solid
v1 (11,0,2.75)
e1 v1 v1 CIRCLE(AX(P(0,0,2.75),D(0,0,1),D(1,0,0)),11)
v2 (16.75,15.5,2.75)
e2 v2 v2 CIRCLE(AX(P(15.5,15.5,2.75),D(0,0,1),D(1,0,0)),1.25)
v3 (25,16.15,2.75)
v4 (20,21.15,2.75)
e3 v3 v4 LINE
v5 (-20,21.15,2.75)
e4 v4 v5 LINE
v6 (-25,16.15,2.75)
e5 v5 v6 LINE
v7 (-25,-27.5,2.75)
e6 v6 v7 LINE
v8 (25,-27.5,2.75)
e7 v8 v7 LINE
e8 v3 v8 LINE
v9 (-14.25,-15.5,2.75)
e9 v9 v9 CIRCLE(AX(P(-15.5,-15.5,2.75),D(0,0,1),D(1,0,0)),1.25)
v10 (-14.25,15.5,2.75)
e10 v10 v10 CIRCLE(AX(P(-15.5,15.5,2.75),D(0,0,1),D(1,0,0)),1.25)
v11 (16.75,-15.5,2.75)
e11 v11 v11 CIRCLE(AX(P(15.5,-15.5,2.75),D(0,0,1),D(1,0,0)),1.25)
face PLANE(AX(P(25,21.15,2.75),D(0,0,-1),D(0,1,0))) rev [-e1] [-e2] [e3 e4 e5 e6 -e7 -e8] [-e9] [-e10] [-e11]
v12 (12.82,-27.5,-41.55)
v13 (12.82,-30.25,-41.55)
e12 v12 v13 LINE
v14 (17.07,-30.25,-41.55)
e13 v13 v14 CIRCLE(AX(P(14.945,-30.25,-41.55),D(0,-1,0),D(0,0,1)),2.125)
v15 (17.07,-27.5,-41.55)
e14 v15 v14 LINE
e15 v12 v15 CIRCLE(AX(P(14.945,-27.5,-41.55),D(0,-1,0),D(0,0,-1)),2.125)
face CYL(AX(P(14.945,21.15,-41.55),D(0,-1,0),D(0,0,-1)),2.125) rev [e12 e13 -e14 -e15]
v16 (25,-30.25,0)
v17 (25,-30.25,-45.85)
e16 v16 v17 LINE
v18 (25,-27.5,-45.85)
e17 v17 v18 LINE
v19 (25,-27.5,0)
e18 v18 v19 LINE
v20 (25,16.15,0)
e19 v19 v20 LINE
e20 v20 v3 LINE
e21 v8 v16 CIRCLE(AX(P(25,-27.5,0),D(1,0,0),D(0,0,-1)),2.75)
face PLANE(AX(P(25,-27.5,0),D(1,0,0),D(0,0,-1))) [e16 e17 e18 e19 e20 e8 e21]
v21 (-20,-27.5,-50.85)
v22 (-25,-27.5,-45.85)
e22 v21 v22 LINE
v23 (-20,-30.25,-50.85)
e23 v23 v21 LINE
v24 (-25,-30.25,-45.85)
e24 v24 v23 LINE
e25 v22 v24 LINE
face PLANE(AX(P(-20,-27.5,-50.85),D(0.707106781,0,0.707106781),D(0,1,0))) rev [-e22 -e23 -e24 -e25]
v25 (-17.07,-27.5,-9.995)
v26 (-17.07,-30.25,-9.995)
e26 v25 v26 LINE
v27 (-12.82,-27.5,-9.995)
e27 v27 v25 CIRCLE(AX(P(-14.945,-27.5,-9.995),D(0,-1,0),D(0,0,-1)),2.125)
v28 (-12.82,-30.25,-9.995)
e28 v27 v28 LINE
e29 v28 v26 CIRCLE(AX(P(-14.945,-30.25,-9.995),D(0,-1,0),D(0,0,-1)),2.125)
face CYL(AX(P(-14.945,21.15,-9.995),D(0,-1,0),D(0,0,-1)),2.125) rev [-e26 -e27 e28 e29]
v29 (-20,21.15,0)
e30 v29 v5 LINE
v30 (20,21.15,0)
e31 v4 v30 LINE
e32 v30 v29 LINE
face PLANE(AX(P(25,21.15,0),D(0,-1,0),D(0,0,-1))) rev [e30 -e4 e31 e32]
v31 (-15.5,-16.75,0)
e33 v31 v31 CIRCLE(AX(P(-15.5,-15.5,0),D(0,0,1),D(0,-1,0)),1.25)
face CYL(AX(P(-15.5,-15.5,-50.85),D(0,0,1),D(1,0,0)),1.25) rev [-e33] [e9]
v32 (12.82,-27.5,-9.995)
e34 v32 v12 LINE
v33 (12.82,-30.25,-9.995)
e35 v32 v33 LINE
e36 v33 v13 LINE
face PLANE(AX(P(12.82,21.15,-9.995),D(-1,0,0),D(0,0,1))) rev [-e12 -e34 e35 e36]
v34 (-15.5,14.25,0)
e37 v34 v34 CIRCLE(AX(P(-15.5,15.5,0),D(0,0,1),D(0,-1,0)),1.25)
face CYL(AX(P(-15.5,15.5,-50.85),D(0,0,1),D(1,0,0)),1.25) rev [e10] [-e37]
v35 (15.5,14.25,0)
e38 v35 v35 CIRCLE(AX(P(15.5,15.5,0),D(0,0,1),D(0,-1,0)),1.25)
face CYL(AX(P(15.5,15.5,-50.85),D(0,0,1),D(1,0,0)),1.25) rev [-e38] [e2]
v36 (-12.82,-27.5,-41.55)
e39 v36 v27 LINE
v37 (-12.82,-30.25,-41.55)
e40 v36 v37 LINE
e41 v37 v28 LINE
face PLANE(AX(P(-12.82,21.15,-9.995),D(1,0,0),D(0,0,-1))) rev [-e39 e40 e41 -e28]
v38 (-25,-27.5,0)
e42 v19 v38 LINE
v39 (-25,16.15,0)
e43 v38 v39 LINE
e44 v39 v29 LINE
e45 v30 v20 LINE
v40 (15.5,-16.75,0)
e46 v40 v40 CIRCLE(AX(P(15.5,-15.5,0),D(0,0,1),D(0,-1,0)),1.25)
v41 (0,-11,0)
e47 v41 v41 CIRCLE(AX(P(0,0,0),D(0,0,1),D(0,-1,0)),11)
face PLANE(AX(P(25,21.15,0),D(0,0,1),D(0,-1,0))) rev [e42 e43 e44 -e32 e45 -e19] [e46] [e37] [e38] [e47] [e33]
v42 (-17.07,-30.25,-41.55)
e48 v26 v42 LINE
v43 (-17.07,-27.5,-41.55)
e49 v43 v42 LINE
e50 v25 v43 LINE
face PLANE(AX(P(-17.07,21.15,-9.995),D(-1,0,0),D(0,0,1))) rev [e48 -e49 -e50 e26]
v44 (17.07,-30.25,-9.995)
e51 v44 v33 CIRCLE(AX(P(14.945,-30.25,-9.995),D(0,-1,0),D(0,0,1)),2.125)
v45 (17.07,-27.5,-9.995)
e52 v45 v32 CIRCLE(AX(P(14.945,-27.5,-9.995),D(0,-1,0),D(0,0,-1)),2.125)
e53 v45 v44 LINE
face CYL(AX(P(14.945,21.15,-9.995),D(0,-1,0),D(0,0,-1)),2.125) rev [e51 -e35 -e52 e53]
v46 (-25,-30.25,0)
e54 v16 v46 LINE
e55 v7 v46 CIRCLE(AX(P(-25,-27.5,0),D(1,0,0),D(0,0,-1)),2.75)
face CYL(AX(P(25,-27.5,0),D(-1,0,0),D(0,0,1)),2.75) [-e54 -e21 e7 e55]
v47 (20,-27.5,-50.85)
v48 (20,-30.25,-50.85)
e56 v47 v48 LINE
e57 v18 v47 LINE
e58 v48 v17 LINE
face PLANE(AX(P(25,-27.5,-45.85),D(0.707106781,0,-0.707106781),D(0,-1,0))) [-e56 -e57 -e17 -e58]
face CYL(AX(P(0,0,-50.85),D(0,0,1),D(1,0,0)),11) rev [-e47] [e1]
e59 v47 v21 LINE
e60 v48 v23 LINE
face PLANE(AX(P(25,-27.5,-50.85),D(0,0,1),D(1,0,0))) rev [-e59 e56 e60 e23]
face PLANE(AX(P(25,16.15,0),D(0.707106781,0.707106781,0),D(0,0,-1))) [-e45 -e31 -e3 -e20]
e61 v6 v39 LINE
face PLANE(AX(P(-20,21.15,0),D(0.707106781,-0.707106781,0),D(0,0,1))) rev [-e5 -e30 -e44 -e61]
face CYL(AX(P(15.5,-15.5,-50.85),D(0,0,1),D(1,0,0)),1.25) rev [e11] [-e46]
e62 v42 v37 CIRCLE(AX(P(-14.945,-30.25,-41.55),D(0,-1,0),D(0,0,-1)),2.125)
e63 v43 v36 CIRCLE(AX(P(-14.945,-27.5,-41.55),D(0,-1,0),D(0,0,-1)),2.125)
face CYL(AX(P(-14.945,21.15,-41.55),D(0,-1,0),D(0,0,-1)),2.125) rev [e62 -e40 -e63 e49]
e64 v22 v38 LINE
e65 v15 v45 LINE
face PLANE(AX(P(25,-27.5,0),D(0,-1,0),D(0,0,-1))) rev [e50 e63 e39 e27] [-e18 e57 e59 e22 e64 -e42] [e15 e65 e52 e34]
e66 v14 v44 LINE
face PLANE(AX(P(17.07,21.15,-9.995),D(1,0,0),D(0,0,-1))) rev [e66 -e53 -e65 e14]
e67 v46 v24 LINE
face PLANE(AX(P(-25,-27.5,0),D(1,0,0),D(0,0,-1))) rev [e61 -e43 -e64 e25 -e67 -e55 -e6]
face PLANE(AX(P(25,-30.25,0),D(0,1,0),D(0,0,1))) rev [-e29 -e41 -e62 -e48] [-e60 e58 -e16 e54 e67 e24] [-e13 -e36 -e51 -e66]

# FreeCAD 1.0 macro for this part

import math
import FreeCAD as App
import Part
import Sketcher

V = App.Vector
Q = App.Units.Quantity


def edges_at(feature, points):
    """Names of the edges that pass closest to the given points."""
    edges = feature.Shape.Edges
    near = lambda p: min(range(len(edges)), key=lambda i: edges[i].distToShape(Part.Vertex(*p))[0])
    return sorted({f"Edge{near(p) + 1}" for p in points})

doc = App.newDocument("Part")
body = doc.addObject("PartDesign::Body", "Body")

# Sketch on YZ plane
sketch1 = doc.addObject("Sketcher::SketchObject", "Sketch")
body.addObject(sketch1)
sketch1.AttachmentSupport = (doc.YZ_Plane, [""])
sketch1.MapMode = "FlatFace"
sketch1.addGeometry(Part.LineSegment(V(-27.5, 0, 0), V(21.1, 0, 0)), False)
sketch1.addGeometry(Part.LineSegment(V(21.1, 0, 0), V(21.1, 2.8, 0)), False)
sketch1.addGeometry(Part.LineSegment(V(21.1, 2.8, 0), V(-27.5, 2.8, 0)), False)
sketch1.addGeometry(Part.ArcOfCircle(Part.Circle(V(-27.5, 0, 0), V(0, 0, 1), 2.8), math.radians(90), math.radians(180)), False)
sketch1.addGeometry(Part.LineSegment(V(-30.2, 0, 0), V(-30.2, -50.9, 0)), False)
sketch1.addGeometry(Part.LineSegment(V(-30.2, -50.9, 0), V(-27.5, -50.9, 0)), False)
sketch1.addGeometry(Part.LineSegment(V(-27.5, -50.9, 0), V(-27.5, 0, 0)), False)
sketch1.addConstraint(Sketcher.Constraint("Coincident", 0, 2, 1, 1))
sketch1.addConstraint(Sketcher.Constraint("Coincident", 1, 2, 2, 1))
sketch1.addConstraint(Sketcher.Constraint("Tangent", 2, 2, 3, 1))
sketch1.addConstraint(Sketcher.Constraint("Tangent", 3, 2, 4, 1))
sketch1.addConstraint(Sketcher.Constraint("Coincident", 4, 2, 5, 1))
sketch1.addConstraint(Sketcher.Constraint("Coincident", 5, 2, 6, 1))
sketch1.addConstraint(Sketcher.Constraint("Coincident", 6, 2, 0, 1))
sketch1.addConstraint(Sketcher.Constraint("Horizontal", 0))
sketch1.addConstraint(Sketcher.Constraint("Vertical", 1))
sketch1.addConstraint(Sketcher.Constraint("Horizontal", 2))
sketch1.addConstraint(Sketcher.Constraint("Vertical", 4))
sketch1.addConstraint(Sketcher.Constraint("Horizontal", 5))
sketch1.addConstraint(Sketcher.Constraint("Vertical", 6))
sketch1.addConstraint(Sketcher.Constraint("Coincident", 6, 2, 3, 3))
sketch1.addConstraint(Sketcher.Constraint("PointOnObject", 3, 3, -1))
sketch1.addConstraint(Sketcher.Constraint("Radius", 3, Q("2.75 mm")))
sketch1.addConstraint(Sketcher.Constraint("DistanceX", 0, 1, 0, 2, Q("48.65 mm")))
sketch1.addConstraint(Sketcher.Constraint("DistanceY", 4, 2, 4, 1, Q("50.85 mm")))
sketch1.addConstraint(Sketcher.Constraint("DistanceX", 3, 3, -1, 1, Q("27.5 mm")))
pad1 = doc.addObject("PartDesign::Pad", "Pad")
body.addObject(pad1)
pad1.Profile = sketch1
pad1.Length = 50
pad1.Midplane = True

# Sketch on XY plane
sketch2 = doc.addObject("Sketcher::SketchObject", "Sketch001")
body.addObject(sketch2)
sketch2.AttachmentSupport = (doc.XY_Plane, [""])
sketch2.MapMode = "FlatFace"
sketch2.AttachmentOffset = App.Placement(V(0, 0, 2.75), App.Rotation())
sketch2.addGeometry(Part.Circle(V(-15.5, -15.5, 0), V(0, 0, 1), 1.2), False)
sketch2.addGeometry(Part.Circle(V(-15.5, 15.5, 0), V(0, 0, 1), 1.2), False)
sketch2.addGeometry(Part.Circle(V(15.5, 15.5, 0), V(0, 0, 1), 1.2), False)
sketch2.addGeometry(Part.Circle(V(15.5, -15.5, 0), V(0, 0, 1), 1.2), False)
sketch2.addGeometry(Part.Circle(V(0, 0, 0), V(0, 0, 1), 11), False)
sketch2.addConstraint(Sketcher.Constraint("Coincident", 4, 3, -1, 1))
sketch2.addConstraint(Sketcher.Constraint("Equal", 0, 1))
sketch2.addConstraint(Sketcher.Constraint("Equal", 1, 2))
sketch2.addConstraint(Sketcher.Constraint("Equal", 2, 3))
sketch2.addConstraint(Sketcher.Constraint("Symmetric", 0, 3, 2, 3, -1, 1))
sketch2.addConstraint(Sketcher.Constraint("Symmetric", 1, 3, 3, 3, -1, 1))
sketch2.addConstraint(Sketcher.Constraint("Symmetric", 1, 3, 2, 3, -2))
sketch2.addConstraint(Sketcher.Constraint("Diameter", 4, Q("22 mm")))
sketch2.addConstraint(Sketcher.Constraint("Diameter", 0, Q("2.5 mm")))
sketch2.addConstraint(Sketcher.Constraint("DistanceY", 0, 3, 1, 3, Q("31 mm")))
sketch2.addConstraint(Sketcher.Constraint("DistanceX", 1, 3, 2, 3, Q("31 mm")))
pocket1 = doc.addObject("PartDesign::Pocket", "Pocket")
body.addObject(pocket1)
pocket1.Profile = sketch2
pocket1.Type = "ThroughAll"

# Sketch on XZ plane
sketch3 = doc.addObject("Sketcher::SketchObject", "Sketch002")
body.addObject(sketch3)
sketch3.AttachmentSupport = (doc.XZ_Plane, [""])
sketch3.MapMode = "FlatFace"
sketch3.AttachmentOffset = App.Placement(V(0, 0, 30.25), App.Rotation())
sketch3.addGeometry(Part.LineSegment(V(-12.8, -41.5, 0), V(-12.8, -10, 0)), False)
sketch3.addGeometry(Part.ArcOfCircle(Part.Circle(V(-14.9, -10, 0), V(0, 0, 1), 2.1), math.radians(0), math.radians(180)), False)
sketch3.addGeometry(Part.LineSegment(V(-17.1, -10, 0), V(-17.1, -41.5, 0)), False)
sketch3.addGeometry(Part.ArcOfCircle(Part.Circle(V(-14.9, -41.5, 0), V(0, 0, 1), 2.1), math.radians(180), math.radians(360)), False)
sketch3.addGeometry(Part.LineSegment(V(12.8, -10, 0), V(12.8, -41.5, 0)), False)
sketch3.addGeometry(Part.ArcOfCircle(Part.Circle(V(14.9, -41.5, 0), V(0, 0, 1), 2.1), math.radians(180), math.radians(360)), False)
sketch3.addGeometry(Part.LineSegment(V(17.1, -41.5, 0), V(17.1, -10, 0)), False)
sketch3.addGeometry(Part.ArcOfCircle(Part.Circle(V(14.9, -10, 0), V(0, 0, 1), 2.1), math.radians(0), math.radians(180)), False)
sketch3.addConstraint(Sketcher.Constraint("Tangent", 0, 2, 1, 1))
sketch3.addConstraint(Sketcher.Constraint("Tangent", 1, 2, 2, 1))
sketch3.addConstraint(Sketcher.Constraint("Tangent", 2, 2, 3, 1))
sketch3.addConstraint(Sketcher.Constraint("Tangent", 3, 2, 0, 1))
sketch3.addConstraint(Sketcher.Constraint("Tangent", 4, 2, 5, 1))
sketch3.addConstraint(Sketcher.Constraint("Tangent", 5, 2, 6, 1))
sketch3.addConstraint(Sketcher.Constraint("Tangent", 6, 2, 7, 1))
sketch3.addConstraint(Sketcher.Constraint("Tangent", 7, 2, 4, 1))
sketch3.addConstraint(Sketcher.Constraint("Vertical", 0))
sketch3.addConstraint(Sketcher.Constraint("Vertical", 2))
sketch3.addConstraint(Sketcher.Constraint("Vertical", 4))
sketch3.addConstraint(Sketcher.Constraint("Vertical", 6))
sketch3.addConstraint(Sketcher.Constraint("Equal", 3, 5))
sketch3.addConstraint(Sketcher.Constraint("Symmetric", 3, 3, 5, 3, -2))
sketch3.addConstraint(Sketcher.Constraint("Horizontal", 1, 3, 7, 3))
sketch3.addConstraint(Sketcher.Constraint("Radius", 1, Q("2.125 mm")))
sketch3.addConstraint(Sketcher.Constraint("DistanceY", 0, 1, 0, 2, Q("31.555 mm")))
sketch3.addConstraint(Sketcher.Constraint("DistanceY", 3, 3, -1, 1, Q("41.55 mm")))
sketch3.addConstraint(Sketcher.Constraint("DistanceX", 0, 2, -1, 1, Q("12.82 mm")))
pocket2 = doc.addObject("PartDesign::Pocket", "Pocket001")
body.addObject(pocket2)
pocket2.Profile = sketch3
pocket2.Type = "ThroughAll"
doc.recompute()

chamfer = doc.addObject("PartDesign::Chamfer", "Chamfer")
body.addObject(chamfer)
chamfer.Base = (pocket2, edges_at(pocket2, [
    (25, -28.875, -50.85),
    (25, 21.15, 1.375),
    (-25, -28.875, -50.85),
    (-25, 21.15, 1.375),
]))
chamfer.Size = 5

doc.recompute()
